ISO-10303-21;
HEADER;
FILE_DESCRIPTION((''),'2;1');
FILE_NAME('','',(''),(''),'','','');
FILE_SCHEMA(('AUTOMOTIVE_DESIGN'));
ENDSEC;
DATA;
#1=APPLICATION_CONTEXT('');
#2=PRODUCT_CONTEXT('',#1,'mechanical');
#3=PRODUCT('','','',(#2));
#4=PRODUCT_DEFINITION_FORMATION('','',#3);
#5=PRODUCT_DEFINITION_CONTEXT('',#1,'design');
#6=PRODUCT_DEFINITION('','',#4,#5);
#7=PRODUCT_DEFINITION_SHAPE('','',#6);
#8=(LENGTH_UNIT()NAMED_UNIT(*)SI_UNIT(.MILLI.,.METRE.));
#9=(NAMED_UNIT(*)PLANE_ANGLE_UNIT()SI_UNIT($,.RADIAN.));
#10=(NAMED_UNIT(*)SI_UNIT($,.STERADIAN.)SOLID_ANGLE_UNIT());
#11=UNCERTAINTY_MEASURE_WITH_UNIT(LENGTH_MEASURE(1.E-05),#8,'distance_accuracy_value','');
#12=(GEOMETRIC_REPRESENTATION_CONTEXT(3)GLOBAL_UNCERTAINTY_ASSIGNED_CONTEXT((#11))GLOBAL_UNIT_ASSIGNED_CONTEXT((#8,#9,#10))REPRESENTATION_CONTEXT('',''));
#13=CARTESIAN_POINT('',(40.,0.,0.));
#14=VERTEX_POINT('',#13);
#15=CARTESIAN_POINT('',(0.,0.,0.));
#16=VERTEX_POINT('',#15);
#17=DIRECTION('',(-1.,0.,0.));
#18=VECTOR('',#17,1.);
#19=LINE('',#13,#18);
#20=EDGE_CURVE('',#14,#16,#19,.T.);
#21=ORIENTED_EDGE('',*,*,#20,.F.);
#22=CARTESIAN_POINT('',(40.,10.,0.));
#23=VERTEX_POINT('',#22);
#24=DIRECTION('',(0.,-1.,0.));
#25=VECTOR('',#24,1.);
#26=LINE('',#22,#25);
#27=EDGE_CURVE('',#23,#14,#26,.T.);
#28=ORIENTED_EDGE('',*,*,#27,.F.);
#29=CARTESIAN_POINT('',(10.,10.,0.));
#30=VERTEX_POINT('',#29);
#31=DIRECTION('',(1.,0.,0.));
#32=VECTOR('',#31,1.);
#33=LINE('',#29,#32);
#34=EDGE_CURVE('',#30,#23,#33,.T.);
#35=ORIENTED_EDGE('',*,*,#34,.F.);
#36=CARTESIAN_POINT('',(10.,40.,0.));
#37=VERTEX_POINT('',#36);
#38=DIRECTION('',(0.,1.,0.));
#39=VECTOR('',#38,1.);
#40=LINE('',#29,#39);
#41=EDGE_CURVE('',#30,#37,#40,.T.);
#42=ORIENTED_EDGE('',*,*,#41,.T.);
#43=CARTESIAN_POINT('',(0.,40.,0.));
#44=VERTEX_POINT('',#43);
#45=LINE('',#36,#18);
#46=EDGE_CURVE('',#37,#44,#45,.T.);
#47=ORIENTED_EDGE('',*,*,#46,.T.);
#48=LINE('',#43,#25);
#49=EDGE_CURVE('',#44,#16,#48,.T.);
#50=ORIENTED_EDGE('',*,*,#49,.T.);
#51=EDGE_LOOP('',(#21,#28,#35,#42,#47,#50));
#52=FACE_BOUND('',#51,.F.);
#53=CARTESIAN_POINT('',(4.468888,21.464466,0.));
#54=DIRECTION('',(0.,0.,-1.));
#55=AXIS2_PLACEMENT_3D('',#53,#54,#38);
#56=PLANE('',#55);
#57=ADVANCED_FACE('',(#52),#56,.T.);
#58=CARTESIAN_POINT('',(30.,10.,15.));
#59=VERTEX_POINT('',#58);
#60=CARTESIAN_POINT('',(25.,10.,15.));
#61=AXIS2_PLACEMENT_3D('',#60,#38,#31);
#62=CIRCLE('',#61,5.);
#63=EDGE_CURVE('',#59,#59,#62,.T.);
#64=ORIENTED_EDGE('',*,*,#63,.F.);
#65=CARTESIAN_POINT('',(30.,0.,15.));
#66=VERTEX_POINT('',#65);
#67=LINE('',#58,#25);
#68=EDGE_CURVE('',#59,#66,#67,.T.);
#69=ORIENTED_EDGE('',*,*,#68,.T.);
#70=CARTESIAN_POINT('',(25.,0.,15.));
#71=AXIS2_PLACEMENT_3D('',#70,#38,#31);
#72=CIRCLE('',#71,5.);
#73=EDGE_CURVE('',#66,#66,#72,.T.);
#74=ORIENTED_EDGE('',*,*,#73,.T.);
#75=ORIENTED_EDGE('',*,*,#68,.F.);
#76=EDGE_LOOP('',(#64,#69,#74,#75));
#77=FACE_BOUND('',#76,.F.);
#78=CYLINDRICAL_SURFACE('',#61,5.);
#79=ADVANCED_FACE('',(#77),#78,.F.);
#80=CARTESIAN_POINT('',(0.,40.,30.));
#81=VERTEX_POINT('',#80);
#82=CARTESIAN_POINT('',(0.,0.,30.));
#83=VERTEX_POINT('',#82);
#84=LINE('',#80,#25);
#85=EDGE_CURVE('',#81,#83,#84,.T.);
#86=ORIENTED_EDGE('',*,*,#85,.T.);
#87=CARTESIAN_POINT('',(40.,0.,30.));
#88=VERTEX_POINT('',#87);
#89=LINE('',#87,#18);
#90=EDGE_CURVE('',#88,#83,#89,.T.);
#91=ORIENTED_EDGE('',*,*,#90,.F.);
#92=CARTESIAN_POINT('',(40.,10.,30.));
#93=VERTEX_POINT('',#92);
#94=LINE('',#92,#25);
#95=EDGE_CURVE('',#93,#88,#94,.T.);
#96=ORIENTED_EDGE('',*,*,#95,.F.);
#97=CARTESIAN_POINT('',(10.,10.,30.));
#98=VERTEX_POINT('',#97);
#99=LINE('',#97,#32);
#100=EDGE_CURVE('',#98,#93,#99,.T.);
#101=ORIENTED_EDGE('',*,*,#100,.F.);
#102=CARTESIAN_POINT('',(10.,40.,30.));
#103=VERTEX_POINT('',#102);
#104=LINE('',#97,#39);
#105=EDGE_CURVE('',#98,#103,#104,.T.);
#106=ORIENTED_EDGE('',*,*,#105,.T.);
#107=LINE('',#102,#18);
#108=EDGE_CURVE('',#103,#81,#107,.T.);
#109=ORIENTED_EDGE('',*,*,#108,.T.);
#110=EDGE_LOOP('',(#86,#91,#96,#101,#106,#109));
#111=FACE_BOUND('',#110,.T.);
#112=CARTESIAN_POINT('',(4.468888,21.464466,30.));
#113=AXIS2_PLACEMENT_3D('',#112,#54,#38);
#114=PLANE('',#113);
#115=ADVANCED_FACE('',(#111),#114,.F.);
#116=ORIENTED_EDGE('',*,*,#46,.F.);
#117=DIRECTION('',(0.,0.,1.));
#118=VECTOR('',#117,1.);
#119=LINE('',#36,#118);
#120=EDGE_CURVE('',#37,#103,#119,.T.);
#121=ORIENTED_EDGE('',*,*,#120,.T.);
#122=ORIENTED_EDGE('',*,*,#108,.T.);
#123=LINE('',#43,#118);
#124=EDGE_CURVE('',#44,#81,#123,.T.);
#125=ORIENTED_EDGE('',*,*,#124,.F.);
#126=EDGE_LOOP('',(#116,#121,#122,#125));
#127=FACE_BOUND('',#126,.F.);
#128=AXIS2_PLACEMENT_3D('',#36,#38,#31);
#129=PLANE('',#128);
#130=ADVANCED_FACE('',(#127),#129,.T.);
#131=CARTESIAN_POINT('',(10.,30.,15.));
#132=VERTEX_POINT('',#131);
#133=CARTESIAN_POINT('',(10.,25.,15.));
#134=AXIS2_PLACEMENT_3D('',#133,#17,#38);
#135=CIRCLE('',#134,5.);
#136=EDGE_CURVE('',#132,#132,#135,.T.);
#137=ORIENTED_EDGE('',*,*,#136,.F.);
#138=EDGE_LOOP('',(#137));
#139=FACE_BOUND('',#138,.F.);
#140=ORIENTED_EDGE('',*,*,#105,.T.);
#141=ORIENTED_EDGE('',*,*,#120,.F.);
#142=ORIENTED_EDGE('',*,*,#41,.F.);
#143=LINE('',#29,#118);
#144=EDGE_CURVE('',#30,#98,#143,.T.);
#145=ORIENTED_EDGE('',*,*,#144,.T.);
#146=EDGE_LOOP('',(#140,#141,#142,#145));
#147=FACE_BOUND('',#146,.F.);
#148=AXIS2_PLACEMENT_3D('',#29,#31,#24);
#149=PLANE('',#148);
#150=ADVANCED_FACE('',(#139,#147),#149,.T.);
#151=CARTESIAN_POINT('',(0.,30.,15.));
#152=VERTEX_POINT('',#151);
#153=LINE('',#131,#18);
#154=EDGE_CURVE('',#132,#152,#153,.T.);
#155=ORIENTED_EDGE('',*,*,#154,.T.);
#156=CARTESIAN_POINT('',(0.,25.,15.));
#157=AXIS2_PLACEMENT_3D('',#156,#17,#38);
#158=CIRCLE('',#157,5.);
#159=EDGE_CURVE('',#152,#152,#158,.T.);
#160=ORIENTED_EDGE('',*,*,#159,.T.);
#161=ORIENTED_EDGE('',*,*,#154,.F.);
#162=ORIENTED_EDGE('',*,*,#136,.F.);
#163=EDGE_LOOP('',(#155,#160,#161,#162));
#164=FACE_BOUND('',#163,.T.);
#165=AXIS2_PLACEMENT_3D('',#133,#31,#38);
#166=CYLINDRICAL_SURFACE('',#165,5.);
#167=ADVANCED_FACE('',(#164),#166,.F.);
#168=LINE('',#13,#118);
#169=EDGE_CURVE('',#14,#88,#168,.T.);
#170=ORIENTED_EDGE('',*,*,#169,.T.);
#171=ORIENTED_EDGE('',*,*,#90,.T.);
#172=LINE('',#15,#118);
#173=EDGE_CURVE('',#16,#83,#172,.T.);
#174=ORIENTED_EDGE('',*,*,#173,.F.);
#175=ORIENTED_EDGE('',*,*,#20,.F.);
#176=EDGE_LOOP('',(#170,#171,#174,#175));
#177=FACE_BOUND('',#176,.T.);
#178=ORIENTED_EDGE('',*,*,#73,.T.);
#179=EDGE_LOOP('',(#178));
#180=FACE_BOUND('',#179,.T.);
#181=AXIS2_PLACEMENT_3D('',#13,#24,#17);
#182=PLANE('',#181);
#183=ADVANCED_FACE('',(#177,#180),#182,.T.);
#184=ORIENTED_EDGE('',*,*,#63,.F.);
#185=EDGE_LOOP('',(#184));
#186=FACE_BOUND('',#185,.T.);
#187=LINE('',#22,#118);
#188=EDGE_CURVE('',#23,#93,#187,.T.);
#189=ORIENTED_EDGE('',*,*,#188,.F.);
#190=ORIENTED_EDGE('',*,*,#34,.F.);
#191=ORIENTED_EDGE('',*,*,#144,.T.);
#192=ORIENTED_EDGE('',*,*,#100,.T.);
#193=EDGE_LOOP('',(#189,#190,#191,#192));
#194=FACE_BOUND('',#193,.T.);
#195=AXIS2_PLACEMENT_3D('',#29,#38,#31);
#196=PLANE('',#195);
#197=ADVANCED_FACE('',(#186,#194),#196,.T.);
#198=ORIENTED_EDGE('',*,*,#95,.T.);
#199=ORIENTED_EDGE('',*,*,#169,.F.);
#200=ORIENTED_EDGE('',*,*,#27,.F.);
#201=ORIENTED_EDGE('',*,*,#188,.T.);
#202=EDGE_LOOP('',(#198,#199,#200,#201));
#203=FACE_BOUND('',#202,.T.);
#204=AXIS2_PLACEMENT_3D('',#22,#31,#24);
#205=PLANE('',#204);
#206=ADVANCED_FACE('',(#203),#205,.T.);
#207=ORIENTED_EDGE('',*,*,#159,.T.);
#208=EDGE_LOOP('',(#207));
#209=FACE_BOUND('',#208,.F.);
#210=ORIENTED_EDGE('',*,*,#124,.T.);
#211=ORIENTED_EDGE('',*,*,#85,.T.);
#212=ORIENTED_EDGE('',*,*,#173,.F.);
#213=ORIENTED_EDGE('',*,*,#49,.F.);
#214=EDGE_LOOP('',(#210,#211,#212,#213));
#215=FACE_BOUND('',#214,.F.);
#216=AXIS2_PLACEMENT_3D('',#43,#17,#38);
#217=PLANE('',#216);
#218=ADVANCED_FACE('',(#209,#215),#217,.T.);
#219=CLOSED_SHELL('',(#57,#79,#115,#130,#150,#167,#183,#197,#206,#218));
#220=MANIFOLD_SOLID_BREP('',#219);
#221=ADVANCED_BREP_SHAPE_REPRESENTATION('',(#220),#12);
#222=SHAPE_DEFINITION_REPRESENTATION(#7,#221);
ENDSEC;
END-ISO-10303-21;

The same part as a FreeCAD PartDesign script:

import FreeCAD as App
import Part
import Sketcher
from FreeCAD import Vector


def add_polygon(sketch, points):
    """Adds a closed chain of lines whose ends are joined by coincident constraints."""
    first, n = sketch.GeometryCount, len(points)
    for a, b in zip(points, points[1:] + points[:1]):
        sketch.addGeometry(Part.LineSegment(App.Vector(*a, 0), App.Vector(*b, 0)), False)
    for i in range(n):
        sketch.addConstraint(Sketcher.Constraint("Coincident", first + i, 2, first + (i + 1) % n, 1))

doc = App.newDocument("Part")
params = doc.addObject("Spreadsheet::Sheet", "Params")
for row, (alias, value) in enumerate([
    ("sketch1_width", "40 mm"),
    ("sketch1_width2", "30 mm"),
    ("sketch1_height", "10 mm"),
    ("pad1_length", "30 mm"),
    ("sketch2_diameter", "10 mm"),
    ("pocket1_length", "30 mm"),
], start=1):
    params.set(f"A{row}", alias)
    params.set(f"B{row}", "=" + value)
    params.setAlias(f"B{row}", alias)

body = doc.addObject("PartDesign::Body", "Body")

sketch1 = body.newObject("Sketcher::SketchObject", "Sketch")
sketch1.AttachmentSupport = (doc.getObject("XY_Plane"), [""])
sketch1.MapMode = "FlatFace"
add_polygon(sketch1, [(10, 10), (0, 0), (40, 0), (40, 10)])
sketch1.addConstraint(Sketcher.Constraint("Horizontal", 1))
sketch1.addConstraint(Sketcher.Constraint("Vertical", 2))
sketch1.addConstraint(Sketcher.Constraint("Horizontal", 3))
sketch1.addConstraint(Sketcher.Constraint("Coincident", 0, 2, -1, 1))
sketch1.addConstraint(Sketcher.Constraint("DistanceX", 1, 1, 1, 2, 40.0))
sketch1.addConstraint(Sketcher.Constraint("DistanceX", 3, 2, 3, 1, 30.0))
sketch1.addConstraint(Sketcher.Constraint("DistanceY", 2, 1, 2, 2, 10.0))
sketch1.setExpression("Constraints[8]", "Params.sketch1_width")
sketch1.setExpression("Constraints[9]", "Params.sketch1_width2")
sketch1.setExpression("Constraints[10]", "Params.sketch1_height")
pad1 = body.newObject("PartDesign::Pad", "Pad")
pad1.Profile = sketch1
pad1.setExpression("Length", "Params.pad1_length")

sketch2 = body.newObject("Sketcher::SketchObject", "Sketch001")
sketch2.AttachmentSupport = (doc.getObject("XZ_Plane"), [""])
sketch2.MapMode = "FlatFace"
sketch2.AttachmentOffset = App.Placement(Vector(0, 0, -10), App.Rotation())
sketch2.addGeometry(Part.Circle(Vector(25, 15, 0), Vector(0, 0, 1), 5), False)
sketch2.addConstraint(Sketcher.Constraint("Diameter", 0, 10.0))
sketch2.addConstraint(Sketcher.Constraint("DistanceX", -1, 1, 0, 3, 25.0))
sketch2.addConstraint(Sketcher.Constraint("DistanceY", -1, 1, 0, 3, 15.0))
sketch2.setExpression("Constraints[0]", "Params.sketch2_diameter")
pocket1 = body.newObject("PartDesign::Pocket", "Pocket")
pocket1.Profile = sketch2
pocket1.setExpression("Length", "Params.pocket1_length")
pocket1.Reversed = True
body2 = doc.addObject("PartDesign::Body", "Body001")
doc.recompute()

body2.BaseFeature = body
doc.recompute()

mirroring = doc.addObject("Part::Mirroring", "Mirroring")
mirroring.Source = body
mirroring.Base = Vector(0, 0, 30)
mirroring.Normal = Vector(0.707106781, -0.707106781, 0)
body3 = doc.addObject("PartDesign::Body", "Body002")
body3.BaseFeature = mirroring
boolean = body2.newObject("PartDesign::Boolean", "Boolean")
boolean.Type = "Fuse"
boolean.addObjects([body3])
doc.recompute()
mirroring.Visibility = False

doc.recompute()
